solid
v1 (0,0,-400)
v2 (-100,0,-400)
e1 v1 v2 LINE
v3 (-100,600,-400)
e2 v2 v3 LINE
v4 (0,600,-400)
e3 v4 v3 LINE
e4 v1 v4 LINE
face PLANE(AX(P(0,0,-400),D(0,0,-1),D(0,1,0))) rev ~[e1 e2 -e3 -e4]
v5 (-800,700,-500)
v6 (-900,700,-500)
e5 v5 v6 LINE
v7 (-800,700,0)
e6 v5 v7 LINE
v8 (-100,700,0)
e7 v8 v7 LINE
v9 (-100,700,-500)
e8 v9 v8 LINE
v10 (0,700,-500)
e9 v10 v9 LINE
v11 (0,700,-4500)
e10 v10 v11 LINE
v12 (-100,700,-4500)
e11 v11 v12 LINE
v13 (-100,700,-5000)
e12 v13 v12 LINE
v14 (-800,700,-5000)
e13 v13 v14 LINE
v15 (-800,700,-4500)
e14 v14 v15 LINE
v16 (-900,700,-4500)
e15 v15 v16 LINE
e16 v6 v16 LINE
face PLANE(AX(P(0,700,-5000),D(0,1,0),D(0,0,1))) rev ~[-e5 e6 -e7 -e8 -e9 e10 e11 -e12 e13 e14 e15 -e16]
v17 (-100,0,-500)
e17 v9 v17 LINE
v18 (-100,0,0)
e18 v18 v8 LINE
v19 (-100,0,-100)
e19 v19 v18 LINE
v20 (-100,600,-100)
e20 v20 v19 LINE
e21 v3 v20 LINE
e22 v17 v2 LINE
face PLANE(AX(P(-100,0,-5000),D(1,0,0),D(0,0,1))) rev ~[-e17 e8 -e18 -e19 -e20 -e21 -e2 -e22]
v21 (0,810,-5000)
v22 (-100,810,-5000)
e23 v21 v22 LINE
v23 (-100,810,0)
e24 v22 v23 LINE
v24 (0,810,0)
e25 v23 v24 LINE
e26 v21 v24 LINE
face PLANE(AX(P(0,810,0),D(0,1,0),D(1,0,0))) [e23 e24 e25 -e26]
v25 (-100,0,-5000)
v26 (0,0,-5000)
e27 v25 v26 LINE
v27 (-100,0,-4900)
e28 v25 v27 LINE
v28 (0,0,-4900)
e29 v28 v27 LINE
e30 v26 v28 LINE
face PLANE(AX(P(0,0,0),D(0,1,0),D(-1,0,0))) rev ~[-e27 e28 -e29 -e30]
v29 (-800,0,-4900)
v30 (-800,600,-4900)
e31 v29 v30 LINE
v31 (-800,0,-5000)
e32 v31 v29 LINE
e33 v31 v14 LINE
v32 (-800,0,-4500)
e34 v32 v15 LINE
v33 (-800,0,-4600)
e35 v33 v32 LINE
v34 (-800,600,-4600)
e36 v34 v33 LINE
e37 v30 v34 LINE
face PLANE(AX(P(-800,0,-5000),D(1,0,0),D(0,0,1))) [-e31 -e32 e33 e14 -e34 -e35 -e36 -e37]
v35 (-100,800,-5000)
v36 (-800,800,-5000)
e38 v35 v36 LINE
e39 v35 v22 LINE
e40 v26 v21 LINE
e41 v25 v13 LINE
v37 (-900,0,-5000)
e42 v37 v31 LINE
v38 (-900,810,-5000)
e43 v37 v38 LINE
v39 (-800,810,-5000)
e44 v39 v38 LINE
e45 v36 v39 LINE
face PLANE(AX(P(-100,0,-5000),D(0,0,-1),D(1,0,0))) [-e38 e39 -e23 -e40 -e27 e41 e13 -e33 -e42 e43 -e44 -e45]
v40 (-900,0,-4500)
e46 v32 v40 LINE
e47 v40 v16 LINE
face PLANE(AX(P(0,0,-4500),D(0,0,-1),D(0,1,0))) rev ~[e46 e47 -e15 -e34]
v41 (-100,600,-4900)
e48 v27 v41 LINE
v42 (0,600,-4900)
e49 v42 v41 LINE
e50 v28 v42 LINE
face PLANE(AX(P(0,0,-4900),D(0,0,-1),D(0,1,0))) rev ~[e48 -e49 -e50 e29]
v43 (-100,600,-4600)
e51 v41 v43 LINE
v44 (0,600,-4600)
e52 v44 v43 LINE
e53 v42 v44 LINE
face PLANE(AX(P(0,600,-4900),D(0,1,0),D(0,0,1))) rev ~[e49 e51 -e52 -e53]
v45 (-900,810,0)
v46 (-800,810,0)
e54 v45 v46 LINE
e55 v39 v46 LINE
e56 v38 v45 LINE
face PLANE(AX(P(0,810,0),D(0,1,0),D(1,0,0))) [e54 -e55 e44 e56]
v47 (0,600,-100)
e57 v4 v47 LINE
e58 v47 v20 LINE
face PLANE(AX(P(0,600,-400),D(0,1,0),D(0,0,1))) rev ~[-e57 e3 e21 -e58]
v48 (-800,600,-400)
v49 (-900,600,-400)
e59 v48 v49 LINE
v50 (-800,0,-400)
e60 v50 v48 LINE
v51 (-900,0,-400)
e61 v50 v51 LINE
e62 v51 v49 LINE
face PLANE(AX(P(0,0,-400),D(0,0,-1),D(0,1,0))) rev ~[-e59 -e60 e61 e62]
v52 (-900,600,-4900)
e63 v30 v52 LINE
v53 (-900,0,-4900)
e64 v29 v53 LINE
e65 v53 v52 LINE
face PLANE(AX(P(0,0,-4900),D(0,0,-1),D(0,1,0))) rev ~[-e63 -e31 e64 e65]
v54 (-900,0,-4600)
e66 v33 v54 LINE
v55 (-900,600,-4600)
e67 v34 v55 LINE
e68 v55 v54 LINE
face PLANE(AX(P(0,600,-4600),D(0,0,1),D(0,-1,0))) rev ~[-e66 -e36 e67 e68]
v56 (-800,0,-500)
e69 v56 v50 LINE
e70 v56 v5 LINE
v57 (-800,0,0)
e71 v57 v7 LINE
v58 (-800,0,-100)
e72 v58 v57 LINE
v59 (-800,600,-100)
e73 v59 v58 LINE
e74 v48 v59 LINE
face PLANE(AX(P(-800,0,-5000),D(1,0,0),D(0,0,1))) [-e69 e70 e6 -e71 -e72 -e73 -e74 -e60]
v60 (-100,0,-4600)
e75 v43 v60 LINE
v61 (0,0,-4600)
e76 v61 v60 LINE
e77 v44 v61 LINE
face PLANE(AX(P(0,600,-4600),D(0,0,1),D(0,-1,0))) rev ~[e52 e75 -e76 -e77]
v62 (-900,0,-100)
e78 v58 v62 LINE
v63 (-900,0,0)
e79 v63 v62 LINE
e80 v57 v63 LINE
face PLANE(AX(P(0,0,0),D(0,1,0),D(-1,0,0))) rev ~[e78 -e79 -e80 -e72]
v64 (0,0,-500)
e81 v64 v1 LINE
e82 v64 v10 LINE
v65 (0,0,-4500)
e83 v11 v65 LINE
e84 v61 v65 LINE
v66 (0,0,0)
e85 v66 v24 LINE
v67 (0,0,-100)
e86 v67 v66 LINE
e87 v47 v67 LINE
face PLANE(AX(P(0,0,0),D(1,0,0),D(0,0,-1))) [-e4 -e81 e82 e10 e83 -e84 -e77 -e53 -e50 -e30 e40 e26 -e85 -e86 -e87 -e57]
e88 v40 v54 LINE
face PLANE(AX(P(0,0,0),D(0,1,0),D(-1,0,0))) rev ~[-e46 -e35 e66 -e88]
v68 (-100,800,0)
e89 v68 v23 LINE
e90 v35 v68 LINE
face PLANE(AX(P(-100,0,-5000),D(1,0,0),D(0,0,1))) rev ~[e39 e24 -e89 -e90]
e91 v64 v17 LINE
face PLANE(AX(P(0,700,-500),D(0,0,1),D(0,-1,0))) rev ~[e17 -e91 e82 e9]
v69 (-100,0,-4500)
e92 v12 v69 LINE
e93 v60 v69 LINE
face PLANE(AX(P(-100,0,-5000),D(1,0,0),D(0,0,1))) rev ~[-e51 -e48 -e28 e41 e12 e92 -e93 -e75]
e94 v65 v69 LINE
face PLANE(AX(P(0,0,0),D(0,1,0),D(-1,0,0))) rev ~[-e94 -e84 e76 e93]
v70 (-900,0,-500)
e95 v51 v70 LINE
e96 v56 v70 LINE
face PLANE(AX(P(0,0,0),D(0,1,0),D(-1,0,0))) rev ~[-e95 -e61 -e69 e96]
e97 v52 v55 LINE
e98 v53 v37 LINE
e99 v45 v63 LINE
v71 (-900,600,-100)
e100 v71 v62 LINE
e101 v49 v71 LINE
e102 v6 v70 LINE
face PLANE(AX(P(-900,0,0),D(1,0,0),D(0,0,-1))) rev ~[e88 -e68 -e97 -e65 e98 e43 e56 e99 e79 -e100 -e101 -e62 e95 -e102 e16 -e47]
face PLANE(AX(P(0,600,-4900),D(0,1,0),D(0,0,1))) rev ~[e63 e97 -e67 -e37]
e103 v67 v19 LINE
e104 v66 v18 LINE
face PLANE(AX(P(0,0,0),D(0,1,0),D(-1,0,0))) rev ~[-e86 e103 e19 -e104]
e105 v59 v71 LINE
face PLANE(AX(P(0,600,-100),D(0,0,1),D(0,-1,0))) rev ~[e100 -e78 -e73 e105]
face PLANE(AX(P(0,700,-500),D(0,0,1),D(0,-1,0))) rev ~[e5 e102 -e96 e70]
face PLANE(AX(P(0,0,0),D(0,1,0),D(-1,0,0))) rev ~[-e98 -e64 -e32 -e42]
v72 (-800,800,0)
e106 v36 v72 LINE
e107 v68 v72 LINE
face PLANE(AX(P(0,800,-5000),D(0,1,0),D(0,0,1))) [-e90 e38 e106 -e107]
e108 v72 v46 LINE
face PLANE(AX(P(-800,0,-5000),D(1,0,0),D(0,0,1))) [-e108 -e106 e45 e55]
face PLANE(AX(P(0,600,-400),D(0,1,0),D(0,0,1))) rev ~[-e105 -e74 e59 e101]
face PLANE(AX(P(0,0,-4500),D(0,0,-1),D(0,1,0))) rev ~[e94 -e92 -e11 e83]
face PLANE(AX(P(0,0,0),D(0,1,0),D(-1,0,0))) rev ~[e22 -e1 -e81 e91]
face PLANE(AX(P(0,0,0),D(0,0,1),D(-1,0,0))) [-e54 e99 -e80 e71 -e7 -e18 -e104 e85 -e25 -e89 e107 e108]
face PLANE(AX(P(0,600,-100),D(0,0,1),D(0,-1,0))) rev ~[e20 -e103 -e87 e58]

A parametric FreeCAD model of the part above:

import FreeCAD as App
import Part
import Sketcher
from FreeCAD import Vector


def add_polygon(sketch, points):
    """Adds a closed chain of lines whose ends are joined by coincident constraints."""
    first, n = sketch.GeometryCount, len(points)
    for a, b in zip(points, points[1:] + points[:1]):
        sketch.addGeometry(Part.LineSegment(App.Vector(*a, 0), App.Vector(*b, 0)), False)
    for i in range(n):
        sketch.addConstraint(Sketcher.Constraint("Coincident", first + i, 2, first + (i + 1) % n, 1))

doc = App.newDocument("Part")
body = doc.addObject("PartDesign::Body", "Body")
body.AllowCompound = True

# Sketch on XZ plane
sketch1 = body.newObject("Sketcher::SketchObject", "Sketch")
sketch1.AttachmentSupport = (doc.getObject("XZ_Plane"), [""])
sketch1.MapMode = "FlatFace"
add_polygon(sketch1, [(-100, 0), (0, 0), (0, -5000), (-100, -5000)])  # lines 0-3
add_polygon(sketch1, [(-900, 0), (-800, 0), (-800, -5000), (-900, -5000)])  # lines 4-7
sketch1.addConstraint([
    Sketcher.Constraint("Horizontal", 0),
    Sketcher.Constraint("Vertical", 1),
    Sketcher.Constraint("Horizontal", 2),
    Sketcher.Constraint("Vertical", 3),
    Sketcher.Constraint("Horizontal", 4),
    Sketcher.Constraint("Vertical", 5),
    Sketcher.Constraint("Horizontal", 6),
    Sketcher.Constraint("Vertical", 7),
    Sketcher.Constraint("Coincident", 0, 2, -1, 1),
    Sketcher.Constraint("PointOnObject", 4, 2, -1),
    Sketcher.Constraint("Horizontal", 2, 2, 5, 2),
    Sketcher.Constraint("Equal", 2, 4),
    Sketcher.Constraint("DistanceX", 0, 1, 0, 2, 100.0),
    Sketcher.Constraint("DistanceX", 6, 2, -1, 1, 900.0),
    Sketcher.Constraint("DistanceY", 1, 2, 1, 1, 5000.0),
])
pad1 = body.newObject("PartDesign::Pad", "Pad")
pad1.Profile = sketch1
pad1.Length = 1100
pad1.Reversed = True

# Sketch on YZ plane
sketch2 = body.newObject("Sketcher::SketchObject", "Sketch001")
sketch2.AttachmentSupport = (doc.getObject("YZ_Plane"), [""])
sketch2.MapMode = "FlatFace"
add_polygon(sketch2, [(800, 0), (700, 0), (700, -5000), (800, -5000)])  # lines 0-3
sketch2.addConstraint([
    Sketcher.Constraint("Horizontal", 0),
    Sketcher.Constraint("Vertical", 1),
    Sketcher.Constraint("Horizontal", 2),
    Sketcher.Constraint("Vertical", 3),
    Sketcher.Constraint("PointOnObject", 0, 2, -1),
    Sketcher.Constraint("DistanceX", 0, 2, 0, 1, 100.0),
    Sketcher.Constraint("DistanceY", 1, 2, 1, 1, 5000.0),
    Sketcher.Constraint("DistanceX", -1, 1, 0, 2, 700.0),
])
pad2 = body.newObject("PartDesign::Pad", "Pad001")
pad2.Profile = sketch2
pad2.Length = 900
pad2.Reversed = True

# Sketch on YZ plane
sketch3 = body.newObject("Sketcher::SketchObject", "Sketch002")
sketch3.AttachmentSupport = (doc.getObject("YZ_Plane"), [""])
sketch3.MapMode = "FlatFace"
add_polygon(sketch3, [(600, -500), (0, -500), (0, -4500), (600, -4500)])  # lines 0-3
sketch3.addConstraint([
    Sketcher.Constraint("Horizontal", 0),
    Sketcher.Constraint("Vertical", 1),
    Sketcher.Constraint("Horizontal", 2),
    Sketcher.Constraint("Vertical", 3),
    Sketcher.Constraint("PointOnObject", 0, 2, -2),
    Sketcher.Constraint("DistanceX", 0, 2, 0, 1, 600.0),
    Sketcher.Constraint("DistanceY", 0, 2, -1, 1, 500.0),
    Sketcher.Constraint("DistanceY", 1, 2, 1, 1, 4000.0),
])
pocket1 = body.newObject("PartDesign::Pocket", "Pocket")
pocket1.Profile = sketch3
pocket1.Length = 900

# Sketch on XZ plane
sketch4 = body.newObject("Sketcher::SketchObject", "Sketch003")
sketch4.AttachmentSupport = (doc.getObject("XZ_Plane"), [""])
sketch4.MapMode = "FlatFace"
sketch4.AttachmentOffset = App.Placement(Vector(0, 0, -1100), App.Rotation())
add_polygon(sketch4, [(0, -5000), (-900, -5000), (-900, 0), (0, 0)])  # lines 0-3
sketch4.addConstraint([
    Sketcher.Constraint("Horizontal", 0),
    Sketcher.Constraint("Vertical", 1),
    Sketcher.Constraint("Horizontal", 2),
    Sketcher.Constraint("Vertical", 3),
    Sketcher.Constraint("Coincident", 2, 2, -1, 1),
    Sketcher.Constraint("DistanceX", 0, 2, 0, 1, 900.0),
    Sketcher.Constraint("DistanceY", 1, 1, 1, 2, 5000.0),
])
pocket2 = body.newObject("PartDesign::Pocket", "Pocket001")
pocket2.Profile = sketch4
pocket2.Length = 290
pocket2.Reversed = True

# Sketch on YZ plane
sketch5 = body.newObject("Sketcher::SketchObject", "Sketch004")
sketch5.AttachmentSupport = (doc.getObject("YZ_Plane"), [""])
sketch5.MapMode = "FlatFace"
add_polygon(sketch5, [(600, -4500), (700, -4500), (700, -500), (600, -500)])  # lines 0-3
add_polygon(sketch5, [(0, -4600), (0, -4900), (600, -4900), (600, -4600)])  # lines 4-7
add_polygon(sketch5, [(600, -100), (0, -100), (0, -400), (600, -400)])  # lines 8-11
sketch5.addConstraint([
    Sketcher.Constraint("Horizontal", 0),
    Sketcher.Constraint("Vertical", 1),
    Sketcher.Constraint("Horizontal", 2),
    Sketcher.Constraint("Vertical", 3),
    Sketcher.Constraint("Vertical", 4),
    Sketcher.Constraint("Horizontal", 5),
    Sketcher.Constraint("Vertical", 6),
    Sketcher.Constraint("Horizontal", 7),
    Sketcher.Constraint("Horizontal", 8),
    Sketcher.Constraint("Vertical", 9),
    Sketcher.Constraint("Horizontal", 10),
    Sketcher.Constraint("Vertical", 11),
    Sketcher.Constraint("PointOnObject", 4, 2, -2),
    Sketcher.Constraint("PointOnObject", 8, 2, -2),
    Sketcher.Constraint("Vertical", 3, 2, 5, 2),
    Sketcher.Constraint("Vertical", 6, 2, 10, 2),
    Sketcher.Constraint("Equal", 6, 9),
    Sketcher.Constraint("DistanceX", 0, 1, 0, 2, 100.0),
    Sketcher.Constraint("DistanceY", 8, 2, -1, 1, 100.0),
    Sketcher.Constraint("DistanceY", 6, 2, 3, 2, 100.0),
    Sketcher.Constraint("DistanceY", 2, 2, 9, 2, 100.0),
    Sketcher.Constraint("DistanceX", 5, 1, 5, 2, 600.0),
    Sketcher.Constraint("DistanceY", 1, 1, 1, 2, 4000.0),
    Sketcher.Constraint("DistanceY", 4, 2, 4, 1, 300.0),
])
pocket3 = body.newObject("PartDesign::Pocket", "Pocket002")
pocket3.Profile = sketch5
pocket3.Type = "ThroughAll"

doc.recompute()
